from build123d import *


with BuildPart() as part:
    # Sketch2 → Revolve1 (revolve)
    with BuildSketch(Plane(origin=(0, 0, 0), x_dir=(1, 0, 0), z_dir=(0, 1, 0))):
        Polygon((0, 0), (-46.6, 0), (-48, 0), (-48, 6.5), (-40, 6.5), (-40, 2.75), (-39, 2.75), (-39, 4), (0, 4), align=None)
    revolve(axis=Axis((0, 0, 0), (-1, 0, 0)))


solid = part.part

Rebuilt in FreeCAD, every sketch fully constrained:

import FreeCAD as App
import Part
import Sketcher
Q = App.Units.Quantity

doc = App.newDocument("Part")
params = doc.addObject("Spreadsheet::Sheet", "Params")
for row, (alias, value) in enumerate([
    ("sketch1_width", "48 mm"),
    ("sketch1_width2", "39 mm"),
    ("sketch1_width3", "1 mm"),
    ("sketch1_height", "4 mm"),
    ("sketch1_height2", "6.5 mm"),
    ("revolution_angle", "360 deg"),
], start=1):
    params.set(f"A{row}", alias)
    params.set(f"B{row}", "=" + value)
    params.setAlias(f"B{row}", alias)

body = doc.addObject("PartDesign::Body", "Body")

# Sketch on XZ plane
sketch1 = body.newObject("Sketcher::SketchObject", "Sketch")
sketch1.AttachmentSupport = (doc.getObject("XZ_Plane"), [""])
sketch1.MapMode = "FlatFace"
sketch1.addGeometry([
    Part.LineSegment(App.Vector(-48, 0, 0), App.Vector(0, 0, 0)),  # 0
    Part.LineSegment(App.Vector(0, 0, 0), App.Vector(0, -4, 0)),  # 1
    Part.LineSegment(App.Vector(0, -4, 0), App.Vector(-39, -4, 0)),  # 2
    Part.LineSegment(App.Vector(-39, -4, 0), App.Vector(-39, -2.8, 0)),  # 3
    Part.LineSegment(App.Vector(-39, -2.8, 0), App.Vector(-40, -2.8, 0)),  # 4
    Part.LineSegment(App.Vector(-40, -2.8, 0), App.Vector(-40, -6.5, 0)),  # 5
    Part.LineSegment(App.Vector(-40, -6.5, 0), App.Vector(-48, -6.5, 0)),  # 6
    Part.LineSegment(App.Vector(-48, -6.5, 0), App.Vector(-48, 0, 0)),  # 7
], False)
sketch1.addConstraint([
    Sketcher.Constraint("Coincident", 0, 2, 1, 1),
    Sketcher.Constraint("Coincident", 1, 2, 2, 1),
    Sketcher.Constraint("Coincident", 2, 2, 3, 1),
    Sketcher.Constraint("Coincident", 3, 2, 4, 1),
    Sketcher.Constraint("Coincident", 4, 2, 5, 1),
    Sketcher.Constraint("Coincident", 5, 2, 6, 1),
    Sketcher.Constraint("Coincident", 6, 2, 7, 1),
    Sketcher.Constraint("Coincident", 7, 2, 0, 1),
    Sketcher.Constraint("Horizontal", 0),
    Sketcher.Constraint("Vertical", 1),
    Sketcher.Constraint("Horizontal", 2),
    Sketcher.Constraint("Vertical", 3),
    Sketcher.Constraint("Horizontal", 4),
    Sketcher.Constraint("Vertical", 5),
    Sketcher.Constraint("Horizontal", 6),
    Sketcher.Constraint("Vertical", 7),
    Sketcher.Constraint("Coincident", 0, 2, -1, 1),
    Sketcher.Constraint("DistanceX", 0, 1, 0, 2, Q("48 mm")),
    Sketcher.Constraint("DistanceX", 2, 2, 2, 1, Q("39 mm")),
    Sketcher.Constraint("DistanceX", 4, 2, 4, 1, Q("1 mm")),
    Sketcher.Constraint("DistanceY", 1, 2, 1, 1, Q("4 mm")),
    Sketcher.Constraint("DistanceY", 7, 1, 7, 2, Q("6.5 mm")),
    Sketcher.Constraint("DistanceY", 3, 1, 3, 2, Q("1.25 mm")),
])
sketch1.setExpression("Constraints[17]", "Params.sketch1_width")
sketch1.setExpression("Constraints[18]", "Params.sketch1_width2")
sketch1.setExpression("Constraints[19]", "Params.sketch1_width3")
sketch1.setExpression("Constraints[20]", "Params.sketch1_height")
sketch1.setExpression("Constraints[21]", "Params.sketch1_height2")
revolution = body.newObject("PartDesign::Revolution", "Revolution")
revolution.Profile = sketch1
revolution.ReferenceAxis = (sketch1, ["H_Axis"])
revolution.setExpression("Angle", "Params.revolution_angle")

doc.recompute()
